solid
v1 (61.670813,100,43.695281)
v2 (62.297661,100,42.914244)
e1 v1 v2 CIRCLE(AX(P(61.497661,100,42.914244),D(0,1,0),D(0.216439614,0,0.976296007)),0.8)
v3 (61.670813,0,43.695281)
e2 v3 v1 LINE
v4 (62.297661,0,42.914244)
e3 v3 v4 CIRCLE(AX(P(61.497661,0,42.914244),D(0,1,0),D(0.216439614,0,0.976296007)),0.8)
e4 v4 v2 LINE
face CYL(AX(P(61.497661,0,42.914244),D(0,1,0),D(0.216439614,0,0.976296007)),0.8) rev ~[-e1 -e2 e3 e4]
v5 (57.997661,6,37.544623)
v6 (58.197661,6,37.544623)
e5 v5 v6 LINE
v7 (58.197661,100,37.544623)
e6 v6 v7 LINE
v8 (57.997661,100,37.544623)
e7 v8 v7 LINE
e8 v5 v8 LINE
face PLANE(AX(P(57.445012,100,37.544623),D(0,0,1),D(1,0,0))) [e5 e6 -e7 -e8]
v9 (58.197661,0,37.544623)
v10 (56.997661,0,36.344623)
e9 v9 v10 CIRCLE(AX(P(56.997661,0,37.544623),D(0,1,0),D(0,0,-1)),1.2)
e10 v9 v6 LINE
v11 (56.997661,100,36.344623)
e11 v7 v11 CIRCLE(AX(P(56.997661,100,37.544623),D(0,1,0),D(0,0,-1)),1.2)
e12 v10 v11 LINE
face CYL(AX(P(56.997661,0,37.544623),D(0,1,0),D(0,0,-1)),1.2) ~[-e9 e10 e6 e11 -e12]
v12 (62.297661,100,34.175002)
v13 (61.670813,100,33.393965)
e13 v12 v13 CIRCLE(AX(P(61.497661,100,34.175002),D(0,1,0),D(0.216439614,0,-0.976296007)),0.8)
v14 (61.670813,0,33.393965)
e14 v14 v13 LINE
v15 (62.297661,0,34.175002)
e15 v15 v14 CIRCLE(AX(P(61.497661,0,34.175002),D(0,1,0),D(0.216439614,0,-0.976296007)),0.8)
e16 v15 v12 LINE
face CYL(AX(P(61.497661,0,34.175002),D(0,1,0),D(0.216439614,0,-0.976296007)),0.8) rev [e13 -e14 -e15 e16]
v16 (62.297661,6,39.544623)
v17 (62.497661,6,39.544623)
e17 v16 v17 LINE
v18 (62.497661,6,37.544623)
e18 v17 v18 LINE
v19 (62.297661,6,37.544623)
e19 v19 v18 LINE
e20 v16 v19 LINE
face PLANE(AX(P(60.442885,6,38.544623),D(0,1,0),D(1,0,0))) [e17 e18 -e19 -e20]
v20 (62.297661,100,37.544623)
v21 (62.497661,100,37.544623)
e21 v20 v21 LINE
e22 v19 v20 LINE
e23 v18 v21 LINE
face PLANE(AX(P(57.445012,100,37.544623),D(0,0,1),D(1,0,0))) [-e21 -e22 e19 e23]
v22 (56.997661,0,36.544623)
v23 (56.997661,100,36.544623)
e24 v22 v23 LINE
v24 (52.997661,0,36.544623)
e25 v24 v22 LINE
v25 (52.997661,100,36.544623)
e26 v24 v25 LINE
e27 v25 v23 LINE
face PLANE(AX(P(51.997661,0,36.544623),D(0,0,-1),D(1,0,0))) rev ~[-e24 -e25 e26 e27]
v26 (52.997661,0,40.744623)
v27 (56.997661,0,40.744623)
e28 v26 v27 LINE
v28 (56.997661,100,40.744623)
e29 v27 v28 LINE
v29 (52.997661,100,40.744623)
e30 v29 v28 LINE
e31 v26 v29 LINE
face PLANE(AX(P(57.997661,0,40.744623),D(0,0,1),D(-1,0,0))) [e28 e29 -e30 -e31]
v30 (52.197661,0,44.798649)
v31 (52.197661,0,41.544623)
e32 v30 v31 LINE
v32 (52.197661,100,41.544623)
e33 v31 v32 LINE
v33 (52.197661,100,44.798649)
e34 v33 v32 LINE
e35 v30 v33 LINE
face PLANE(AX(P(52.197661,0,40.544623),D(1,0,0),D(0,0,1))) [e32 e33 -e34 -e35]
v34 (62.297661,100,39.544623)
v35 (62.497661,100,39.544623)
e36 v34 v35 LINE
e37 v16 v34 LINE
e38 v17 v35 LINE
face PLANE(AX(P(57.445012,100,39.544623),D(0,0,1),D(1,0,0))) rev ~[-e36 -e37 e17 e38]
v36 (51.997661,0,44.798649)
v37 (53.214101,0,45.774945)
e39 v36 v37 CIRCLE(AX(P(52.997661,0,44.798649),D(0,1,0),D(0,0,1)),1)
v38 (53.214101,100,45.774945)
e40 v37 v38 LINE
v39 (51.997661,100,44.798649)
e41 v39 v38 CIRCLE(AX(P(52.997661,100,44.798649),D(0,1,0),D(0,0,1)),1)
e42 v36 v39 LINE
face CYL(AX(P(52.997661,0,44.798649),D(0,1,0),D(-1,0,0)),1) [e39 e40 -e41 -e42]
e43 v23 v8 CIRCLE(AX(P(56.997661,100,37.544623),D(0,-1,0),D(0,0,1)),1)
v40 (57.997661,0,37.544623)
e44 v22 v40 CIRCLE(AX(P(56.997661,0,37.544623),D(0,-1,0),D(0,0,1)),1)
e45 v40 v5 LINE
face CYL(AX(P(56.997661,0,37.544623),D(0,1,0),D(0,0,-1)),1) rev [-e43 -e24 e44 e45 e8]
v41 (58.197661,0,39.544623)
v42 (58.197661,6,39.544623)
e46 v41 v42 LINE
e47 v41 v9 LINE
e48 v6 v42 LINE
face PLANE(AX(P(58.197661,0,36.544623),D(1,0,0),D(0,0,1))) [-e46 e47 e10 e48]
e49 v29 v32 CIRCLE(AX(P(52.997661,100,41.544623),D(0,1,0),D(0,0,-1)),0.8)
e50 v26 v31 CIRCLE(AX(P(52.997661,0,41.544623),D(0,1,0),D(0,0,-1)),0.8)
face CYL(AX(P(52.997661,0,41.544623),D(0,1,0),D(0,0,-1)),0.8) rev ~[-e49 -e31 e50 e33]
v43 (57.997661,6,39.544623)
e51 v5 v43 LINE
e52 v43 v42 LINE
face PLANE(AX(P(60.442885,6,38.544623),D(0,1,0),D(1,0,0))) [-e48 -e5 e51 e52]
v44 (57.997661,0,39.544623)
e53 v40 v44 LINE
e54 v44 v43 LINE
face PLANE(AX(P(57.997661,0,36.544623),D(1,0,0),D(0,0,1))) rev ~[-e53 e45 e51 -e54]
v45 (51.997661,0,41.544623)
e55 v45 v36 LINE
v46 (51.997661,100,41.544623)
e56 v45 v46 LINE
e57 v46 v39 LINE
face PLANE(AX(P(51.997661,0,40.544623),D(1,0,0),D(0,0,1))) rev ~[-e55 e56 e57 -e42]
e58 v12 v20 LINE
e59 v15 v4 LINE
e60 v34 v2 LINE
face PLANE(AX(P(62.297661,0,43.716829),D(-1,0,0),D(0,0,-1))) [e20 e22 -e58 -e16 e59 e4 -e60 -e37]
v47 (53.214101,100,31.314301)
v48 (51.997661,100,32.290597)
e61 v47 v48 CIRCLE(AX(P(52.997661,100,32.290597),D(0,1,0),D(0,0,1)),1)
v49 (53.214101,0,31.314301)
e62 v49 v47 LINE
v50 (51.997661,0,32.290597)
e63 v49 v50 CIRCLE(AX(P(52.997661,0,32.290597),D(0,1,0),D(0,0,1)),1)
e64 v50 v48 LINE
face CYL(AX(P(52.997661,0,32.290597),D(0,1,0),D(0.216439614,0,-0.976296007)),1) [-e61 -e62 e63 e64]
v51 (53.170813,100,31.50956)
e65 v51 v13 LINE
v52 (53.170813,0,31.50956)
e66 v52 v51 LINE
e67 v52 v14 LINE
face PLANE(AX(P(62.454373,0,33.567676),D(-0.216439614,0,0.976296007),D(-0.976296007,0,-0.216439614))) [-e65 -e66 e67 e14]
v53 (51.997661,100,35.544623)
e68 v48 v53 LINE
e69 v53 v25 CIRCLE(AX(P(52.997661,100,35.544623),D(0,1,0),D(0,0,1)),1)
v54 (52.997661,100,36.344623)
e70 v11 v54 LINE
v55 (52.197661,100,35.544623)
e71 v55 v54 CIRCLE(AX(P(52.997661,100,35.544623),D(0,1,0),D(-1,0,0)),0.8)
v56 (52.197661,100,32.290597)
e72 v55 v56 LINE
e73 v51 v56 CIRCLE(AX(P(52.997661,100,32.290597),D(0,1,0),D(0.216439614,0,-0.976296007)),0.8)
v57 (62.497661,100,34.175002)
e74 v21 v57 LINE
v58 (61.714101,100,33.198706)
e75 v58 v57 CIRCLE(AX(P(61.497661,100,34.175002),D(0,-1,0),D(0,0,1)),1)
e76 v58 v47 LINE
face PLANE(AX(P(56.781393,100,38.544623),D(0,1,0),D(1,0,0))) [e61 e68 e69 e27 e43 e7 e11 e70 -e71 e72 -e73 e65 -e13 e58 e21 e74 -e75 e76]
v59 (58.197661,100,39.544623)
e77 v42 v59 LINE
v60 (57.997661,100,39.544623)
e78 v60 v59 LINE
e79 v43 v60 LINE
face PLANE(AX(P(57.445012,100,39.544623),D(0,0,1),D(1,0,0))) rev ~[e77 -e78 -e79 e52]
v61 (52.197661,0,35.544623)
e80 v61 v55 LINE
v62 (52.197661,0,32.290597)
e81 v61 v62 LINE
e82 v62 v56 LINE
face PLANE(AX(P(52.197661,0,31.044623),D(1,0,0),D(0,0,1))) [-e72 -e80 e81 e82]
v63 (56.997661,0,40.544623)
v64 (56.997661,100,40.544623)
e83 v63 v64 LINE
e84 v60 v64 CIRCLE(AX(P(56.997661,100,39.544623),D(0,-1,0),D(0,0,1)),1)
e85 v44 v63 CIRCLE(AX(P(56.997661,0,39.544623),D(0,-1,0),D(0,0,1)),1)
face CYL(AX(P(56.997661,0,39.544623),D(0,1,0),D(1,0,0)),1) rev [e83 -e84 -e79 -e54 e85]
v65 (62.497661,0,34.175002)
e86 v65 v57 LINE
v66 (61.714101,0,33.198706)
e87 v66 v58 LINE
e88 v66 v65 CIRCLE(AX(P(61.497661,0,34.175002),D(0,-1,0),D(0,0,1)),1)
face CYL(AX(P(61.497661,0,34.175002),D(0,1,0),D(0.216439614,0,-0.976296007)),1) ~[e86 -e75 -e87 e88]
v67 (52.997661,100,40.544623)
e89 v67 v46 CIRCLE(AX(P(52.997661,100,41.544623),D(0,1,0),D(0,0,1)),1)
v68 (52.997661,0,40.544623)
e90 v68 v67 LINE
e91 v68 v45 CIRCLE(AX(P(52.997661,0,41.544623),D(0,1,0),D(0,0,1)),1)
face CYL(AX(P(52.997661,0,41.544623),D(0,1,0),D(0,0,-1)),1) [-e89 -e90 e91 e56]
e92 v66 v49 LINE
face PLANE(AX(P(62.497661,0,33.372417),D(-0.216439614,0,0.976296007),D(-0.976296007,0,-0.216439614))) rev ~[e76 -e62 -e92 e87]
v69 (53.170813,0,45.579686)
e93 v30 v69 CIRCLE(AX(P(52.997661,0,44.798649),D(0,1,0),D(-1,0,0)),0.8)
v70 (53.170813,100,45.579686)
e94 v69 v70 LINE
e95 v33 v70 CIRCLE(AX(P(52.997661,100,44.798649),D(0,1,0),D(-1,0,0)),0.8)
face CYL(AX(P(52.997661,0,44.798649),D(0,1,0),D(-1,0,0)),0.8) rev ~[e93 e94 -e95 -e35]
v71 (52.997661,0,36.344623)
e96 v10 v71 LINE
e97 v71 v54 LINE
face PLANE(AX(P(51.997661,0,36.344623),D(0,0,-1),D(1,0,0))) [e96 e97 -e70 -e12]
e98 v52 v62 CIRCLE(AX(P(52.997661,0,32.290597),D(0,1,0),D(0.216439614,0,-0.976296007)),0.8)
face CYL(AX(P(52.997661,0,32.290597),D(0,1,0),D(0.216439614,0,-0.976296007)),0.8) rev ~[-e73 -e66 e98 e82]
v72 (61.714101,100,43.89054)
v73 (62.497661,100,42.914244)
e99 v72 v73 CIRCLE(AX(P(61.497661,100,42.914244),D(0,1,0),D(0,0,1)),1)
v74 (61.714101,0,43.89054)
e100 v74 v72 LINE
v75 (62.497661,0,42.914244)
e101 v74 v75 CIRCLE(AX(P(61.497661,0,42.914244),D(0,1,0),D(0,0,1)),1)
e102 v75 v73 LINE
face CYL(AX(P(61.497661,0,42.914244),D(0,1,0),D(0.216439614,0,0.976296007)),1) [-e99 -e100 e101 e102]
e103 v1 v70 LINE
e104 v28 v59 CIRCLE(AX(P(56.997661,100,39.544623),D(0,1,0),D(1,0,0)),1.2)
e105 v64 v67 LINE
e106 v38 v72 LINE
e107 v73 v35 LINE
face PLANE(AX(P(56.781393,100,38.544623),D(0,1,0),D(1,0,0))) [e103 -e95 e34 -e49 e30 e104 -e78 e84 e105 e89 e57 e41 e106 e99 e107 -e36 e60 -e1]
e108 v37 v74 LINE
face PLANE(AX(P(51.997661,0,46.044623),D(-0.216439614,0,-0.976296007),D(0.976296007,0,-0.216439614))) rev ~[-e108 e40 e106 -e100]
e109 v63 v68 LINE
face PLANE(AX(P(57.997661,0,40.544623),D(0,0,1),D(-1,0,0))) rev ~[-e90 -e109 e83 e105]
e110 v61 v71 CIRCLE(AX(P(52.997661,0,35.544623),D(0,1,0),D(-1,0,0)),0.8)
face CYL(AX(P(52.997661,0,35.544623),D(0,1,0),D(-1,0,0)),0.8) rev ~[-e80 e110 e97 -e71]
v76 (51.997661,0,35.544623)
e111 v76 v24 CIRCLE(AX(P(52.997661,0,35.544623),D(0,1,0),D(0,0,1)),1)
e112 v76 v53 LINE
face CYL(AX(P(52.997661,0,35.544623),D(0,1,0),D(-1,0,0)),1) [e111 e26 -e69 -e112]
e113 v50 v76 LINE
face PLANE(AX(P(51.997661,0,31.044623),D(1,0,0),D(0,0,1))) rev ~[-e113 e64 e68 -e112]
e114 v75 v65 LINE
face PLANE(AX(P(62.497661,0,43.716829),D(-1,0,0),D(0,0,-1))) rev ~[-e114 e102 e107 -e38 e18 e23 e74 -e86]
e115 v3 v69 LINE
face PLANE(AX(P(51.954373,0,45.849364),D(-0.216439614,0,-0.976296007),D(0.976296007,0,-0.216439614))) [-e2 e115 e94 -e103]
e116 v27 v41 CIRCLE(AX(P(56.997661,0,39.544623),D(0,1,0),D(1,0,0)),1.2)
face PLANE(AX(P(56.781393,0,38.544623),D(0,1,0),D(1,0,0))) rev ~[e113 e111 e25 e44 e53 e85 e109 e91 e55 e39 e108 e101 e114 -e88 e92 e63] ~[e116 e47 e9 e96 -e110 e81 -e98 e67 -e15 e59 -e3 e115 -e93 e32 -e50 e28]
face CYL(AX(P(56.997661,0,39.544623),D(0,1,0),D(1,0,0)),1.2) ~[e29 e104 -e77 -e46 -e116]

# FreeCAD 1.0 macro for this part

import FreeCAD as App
import Part
import Sketcher

V = App.Vector
Q = App.Units.Quantity


def edges_at(feature, points):
    """Names of the edges that pass closest to the given points."""
    edges = feature.Shape.Edges
    near = lambda p: min(range(len(edges)), key=lambda i: edges[i].distToShape(Part.Vertex(*p))[0])
    return sorted({f"Edge{near(p) + 1}" for p in points})


def faces_at(feature, points):
    """Names of the faces that lie closest to the given points."""
    faces = feature.Shape.Faces
    near = lambda p: min(range(len(faces)), key=lambda i: faces[i].distToShape(Part.Vertex(*p))[0])
    return sorted({f"Face{near(p) + 1}" for p in points})

doc = App.newDocument("Part")
body = doc.addObject("PartDesign::Body", "Body")

# Sketch on XZ plane
sketch1 = body.newObject("Sketcher::SketchObject", "Sketch")
sketch1.AttachmentSupport = (doc.getObject("XZ_Plane"), [""])
sketch1.MapMode = "FlatFace"
sketch1.addGeometry([
    Part.LineSegment(V(62.5, 33.4, 0), V(52, 31, 0)),  # 0
    Part.LineSegment(V(52, 31, 0), V(52, 36.5, 0)),  # 1
    Part.LineSegment(V(52, 36.5, 0), V(58, 36.5, 0)),  # 2
    Part.LineSegment(V(58, 36.5, 0), V(58, 40.5, 0)),  # 3
    Part.LineSegment(V(58, 40.5, 0), V(52, 40.5, 0)),  # 4
    Part.LineSegment(V(52, 40.5, 0), V(52, 46, 0)),  # 5
    Part.LineSegment(V(52, 46, 0), V(62.5, 43.7, 0)),  # 6
    Part.LineSegment(V(62.5, 43.7, 0), V(62.5, 33.4, 0)),  # 7
], False)
sketch1.addConstraint([
    Sketcher.Constraint("Coincident", 0, 2, 1, 1),
    Sketcher.Constraint("Coincident", 1, 2, 2, 1),
    Sketcher.Constraint("Coincident", 2, 2, 3, 1),
    Sketcher.Constraint("Coincident", 3, 2, 4, 1),
    Sketcher.Constraint("Coincident", 4, 2, 5, 1),
    Sketcher.Constraint("Coincident", 5, 2, 6, 1),
    Sketcher.Constraint("Coincident", 6, 2, 7, 1),
    Sketcher.Constraint("Coincident", 7, 2, 0, 1),
    Sketcher.Constraint("Vertical", 1),
    Sketcher.Constraint("Horizontal", 2),
    Sketcher.Constraint("Vertical", 3),
    Sketcher.Constraint("Horizontal", 4),
    Sketcher.Constraint("Vertical", 5),
    Sketcher.Constraint("Vertical", 7),
    Sketcher.Constraint("Vertical", 1, 2, 4, 2),
    Sketcher.Constraint("Equal", 1, 5),
    Sketcher.Constraint("Equal", 0, 6),
    Sketcher.Constraint("DistanceX", 2, 1, 2, 2, 6.0),
    Sketcher.Constraint("DistanceY", 3, 1, 3, 2, 4.0),
    Sketcher.Constraint("DistanceY", 1, 1, 1, 2, 5.5),
    Sketcher.Constraint("Angle", 0, Q("-167.5 deg")),
    Sketcher.Constraint("DistanceX", 3, 2, 6, 2, 4.5),
    Sketcher.Constraint("DistanceX", -1, 1, 0, 2, 51.997661),
    Sketcher.Constraint("DistanceY", -1, 1, 6, 2, 43.716829),
])
pad1 = body.newObject("PartDesign::Pad", "Pad")
pad1.Profile = sketch1
pad1.Length = 100
pad1.Reversed = True
doc.recompute()

fillet = body.newObject("PartDesign::Fillet", "Fillet")
fillet.Base = (pad1, edges_at(pad1, [
    (62.498, 50, 43.717),
    (51.998, 50, 46.045),
    (51.998, 50, 40.545),
    (57.998, 50, 40.545),
    (57.998, 50, 36.545),
    (51.998, 50, 36.545),
    (51.998, 50, 31.045),
    (62.498, 50, 33.372),
]))
fillet.Radius = 1
doc.recompute()

thickness = body.newObject("PartDesign::Thickness", "Thickness")
thickness.Base = (fillet, faces_at(fillet, [(55.148, 100, 41.446), (55.148, 0, 41.446)]))
thickness.Value = 0.2
thickness.Reversed = True
thickness.Join = "Intersection"

# Sketch on XZ plane
sketch2 = body.newObject("Sketcher::SketchObject", "Sketch001")
sketch2.AttachmentSupport = (doc.getObject("XZ_Plane"), [""])
sketch2.MapMode = "FlatFace"
sketch2.AttachmentOffset = App.Placement(V(0, 0, -100), App.Rotation())
sketch2.addGeometry([
    Part.LineSegment(V(57.4, 37.5, 0), V(57.4, 39.5, 0)),
    Part.LineSegment(V(57.4, 39.5, 0), V(63.4, 39.5, 0)),
    Part.LineSegment(V(63.4, 39.5, 0), V(63.4, 37.5, 0)),
    Part.LineSegment(V(63.4, 37.5, 0), V(57.4, 37.5, 0)),
], False)
sketch2.addConstraint([
    Sketcher.Constraint("Coincident", 0, 2, 1, 1),
    Sketcher.Constraint("Coincident", 1, 2, 2, 1),
    Sketcher.Constraint("Coincident", 2, 2, 3, 1),
    Sketcher.Constraint("Coincident", 3, 2, 0, 1),
    Sketcher.Constraint("Vertical", 0),
    Sketcher.Constraint("Horizontal", 1),
    Sketcher.Constraint("Vertical", 2),
    Sketcher.Constraint("Horizontal", 3),
    Sketcher.Constraint("DistanceY", 0, 1, 0, 2, 2.0),
    Sketcher.Constraint("DistanceX", 1, 1, 1, 2, 5.995745),
    Sketcher.Constraint("DistanceX", -1, 1, 0, 2, 57.445012),
    Sketcher.Constraint("DistanceY", -1, 1, 0, 2, 39.544623),
])
pocket1 = body.newObject("PartDesign::Pocket", "Pocket")
pocket1.Profile = sketch2
pocket1.Length = 94
pocket1.Reversed = True

doc.recompute()
